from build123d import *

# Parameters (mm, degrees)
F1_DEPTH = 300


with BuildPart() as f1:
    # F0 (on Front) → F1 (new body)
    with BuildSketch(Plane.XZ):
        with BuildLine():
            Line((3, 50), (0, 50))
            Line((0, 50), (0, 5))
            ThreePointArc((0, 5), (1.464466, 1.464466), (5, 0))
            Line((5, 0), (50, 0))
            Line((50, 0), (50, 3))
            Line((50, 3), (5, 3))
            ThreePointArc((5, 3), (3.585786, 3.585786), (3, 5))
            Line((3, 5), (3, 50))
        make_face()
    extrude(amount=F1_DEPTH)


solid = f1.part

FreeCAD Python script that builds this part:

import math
import FreeCAD as App
import Part
import Sketcher

V = App.Vector

doc = App.newDocument("Part")
body = doc.addObject("PartDesign::Body", "Body")

sketch1 = body.newObject("Sketcher::SketchObject", "Sketch")
sketch1.AttachmentSupport = (doc.getObject("XZ_Plane"), [""])
sketch1.MapMode = "FlatFace"
sketch1.addGeometry([
    Part.LineSegment(V(3, 50, 0), V(0, 50, 0)),
    Part.LineSegment(V(0, 50, 0), V(0, 5, 0)),
    Part.ArcOfCircle(Part.Circle(V(5, 5, 0), V(0, 0, 1), 5), math.radians(179.999996), math.radians(270.000004)),
    Part.LineSegment(V(5, 0, 0), V(50, 0, 0)),
    Part.LineSegment(V(50, 0, 0), V(50, 3, 0)),
    Part.LineSegment(V(50, 3, 0), V(5, 3, 0)),
    Part.ArcOfCircle(Part.Circle(V(4.999999, 4.999999, 0), V(0, 0, 1), 1.999999), math.radians(179.999957), math.radians(270.000043)),
    Part.LineSegment(V(3, 5, 0), V(3, 50, 0)),
], False)
sketch1.addConstraint([
    Sketcher.Constraint("Coincident", 0, 2, 1, 1),
    Sketcher.Constraint("Tangent", 1, 2, 2, 1),
    Sketcher.Constraint("Tangent", 2, 2, 3, 1),
    Sketcher.Constraint("Coincident", 3, 2, 4, 1),
    Sketcher.Constraint("Coincident", 4, 2, 5, 1),
    Sketcher.Constraint("Tangent", 5, 2, 6, 2),
    Sketcher.Constraint("Tangent", 6, 1, 7, 1),
    Sketcher.Constraint("Coincident", 7, 2, 0, 1),
    Sketcher.Constraint("Horizontal", 0),
    Sketcher.Constraint("Vertical", 1),
    Sketcher.Constraint("Horizontal", 3),
    Sketcher.Constraint("Vertical", 4),
    Sketcher.Constraint("Horizontal", 5),
    Sketcher.Constraint("Vertical", 7),
    Sketcher.Constraint("Coincident", 6, 3, 2, 3),
    Sketcher.Constraint("PointOnObject", 0, 2, -2),
    Sketcher.Constraint("PointOnObject", 2, 2, -1),
    Sketcher.Constraint("Equal", 5, 1),
    Sketcher.Constraint("Radius", 2, 5.0),
    Sketcher.Constraint("Radius", 6, 1.999999),
    Sketcher.Constraint("DistanceX", 3, 1, 3, 2, 45.0),
])
pad1 = body.newObject("PartDesign::Pad", "Pad")
pad1.Profile = sketch1
pad1.Length = 300

doc.recompute()
